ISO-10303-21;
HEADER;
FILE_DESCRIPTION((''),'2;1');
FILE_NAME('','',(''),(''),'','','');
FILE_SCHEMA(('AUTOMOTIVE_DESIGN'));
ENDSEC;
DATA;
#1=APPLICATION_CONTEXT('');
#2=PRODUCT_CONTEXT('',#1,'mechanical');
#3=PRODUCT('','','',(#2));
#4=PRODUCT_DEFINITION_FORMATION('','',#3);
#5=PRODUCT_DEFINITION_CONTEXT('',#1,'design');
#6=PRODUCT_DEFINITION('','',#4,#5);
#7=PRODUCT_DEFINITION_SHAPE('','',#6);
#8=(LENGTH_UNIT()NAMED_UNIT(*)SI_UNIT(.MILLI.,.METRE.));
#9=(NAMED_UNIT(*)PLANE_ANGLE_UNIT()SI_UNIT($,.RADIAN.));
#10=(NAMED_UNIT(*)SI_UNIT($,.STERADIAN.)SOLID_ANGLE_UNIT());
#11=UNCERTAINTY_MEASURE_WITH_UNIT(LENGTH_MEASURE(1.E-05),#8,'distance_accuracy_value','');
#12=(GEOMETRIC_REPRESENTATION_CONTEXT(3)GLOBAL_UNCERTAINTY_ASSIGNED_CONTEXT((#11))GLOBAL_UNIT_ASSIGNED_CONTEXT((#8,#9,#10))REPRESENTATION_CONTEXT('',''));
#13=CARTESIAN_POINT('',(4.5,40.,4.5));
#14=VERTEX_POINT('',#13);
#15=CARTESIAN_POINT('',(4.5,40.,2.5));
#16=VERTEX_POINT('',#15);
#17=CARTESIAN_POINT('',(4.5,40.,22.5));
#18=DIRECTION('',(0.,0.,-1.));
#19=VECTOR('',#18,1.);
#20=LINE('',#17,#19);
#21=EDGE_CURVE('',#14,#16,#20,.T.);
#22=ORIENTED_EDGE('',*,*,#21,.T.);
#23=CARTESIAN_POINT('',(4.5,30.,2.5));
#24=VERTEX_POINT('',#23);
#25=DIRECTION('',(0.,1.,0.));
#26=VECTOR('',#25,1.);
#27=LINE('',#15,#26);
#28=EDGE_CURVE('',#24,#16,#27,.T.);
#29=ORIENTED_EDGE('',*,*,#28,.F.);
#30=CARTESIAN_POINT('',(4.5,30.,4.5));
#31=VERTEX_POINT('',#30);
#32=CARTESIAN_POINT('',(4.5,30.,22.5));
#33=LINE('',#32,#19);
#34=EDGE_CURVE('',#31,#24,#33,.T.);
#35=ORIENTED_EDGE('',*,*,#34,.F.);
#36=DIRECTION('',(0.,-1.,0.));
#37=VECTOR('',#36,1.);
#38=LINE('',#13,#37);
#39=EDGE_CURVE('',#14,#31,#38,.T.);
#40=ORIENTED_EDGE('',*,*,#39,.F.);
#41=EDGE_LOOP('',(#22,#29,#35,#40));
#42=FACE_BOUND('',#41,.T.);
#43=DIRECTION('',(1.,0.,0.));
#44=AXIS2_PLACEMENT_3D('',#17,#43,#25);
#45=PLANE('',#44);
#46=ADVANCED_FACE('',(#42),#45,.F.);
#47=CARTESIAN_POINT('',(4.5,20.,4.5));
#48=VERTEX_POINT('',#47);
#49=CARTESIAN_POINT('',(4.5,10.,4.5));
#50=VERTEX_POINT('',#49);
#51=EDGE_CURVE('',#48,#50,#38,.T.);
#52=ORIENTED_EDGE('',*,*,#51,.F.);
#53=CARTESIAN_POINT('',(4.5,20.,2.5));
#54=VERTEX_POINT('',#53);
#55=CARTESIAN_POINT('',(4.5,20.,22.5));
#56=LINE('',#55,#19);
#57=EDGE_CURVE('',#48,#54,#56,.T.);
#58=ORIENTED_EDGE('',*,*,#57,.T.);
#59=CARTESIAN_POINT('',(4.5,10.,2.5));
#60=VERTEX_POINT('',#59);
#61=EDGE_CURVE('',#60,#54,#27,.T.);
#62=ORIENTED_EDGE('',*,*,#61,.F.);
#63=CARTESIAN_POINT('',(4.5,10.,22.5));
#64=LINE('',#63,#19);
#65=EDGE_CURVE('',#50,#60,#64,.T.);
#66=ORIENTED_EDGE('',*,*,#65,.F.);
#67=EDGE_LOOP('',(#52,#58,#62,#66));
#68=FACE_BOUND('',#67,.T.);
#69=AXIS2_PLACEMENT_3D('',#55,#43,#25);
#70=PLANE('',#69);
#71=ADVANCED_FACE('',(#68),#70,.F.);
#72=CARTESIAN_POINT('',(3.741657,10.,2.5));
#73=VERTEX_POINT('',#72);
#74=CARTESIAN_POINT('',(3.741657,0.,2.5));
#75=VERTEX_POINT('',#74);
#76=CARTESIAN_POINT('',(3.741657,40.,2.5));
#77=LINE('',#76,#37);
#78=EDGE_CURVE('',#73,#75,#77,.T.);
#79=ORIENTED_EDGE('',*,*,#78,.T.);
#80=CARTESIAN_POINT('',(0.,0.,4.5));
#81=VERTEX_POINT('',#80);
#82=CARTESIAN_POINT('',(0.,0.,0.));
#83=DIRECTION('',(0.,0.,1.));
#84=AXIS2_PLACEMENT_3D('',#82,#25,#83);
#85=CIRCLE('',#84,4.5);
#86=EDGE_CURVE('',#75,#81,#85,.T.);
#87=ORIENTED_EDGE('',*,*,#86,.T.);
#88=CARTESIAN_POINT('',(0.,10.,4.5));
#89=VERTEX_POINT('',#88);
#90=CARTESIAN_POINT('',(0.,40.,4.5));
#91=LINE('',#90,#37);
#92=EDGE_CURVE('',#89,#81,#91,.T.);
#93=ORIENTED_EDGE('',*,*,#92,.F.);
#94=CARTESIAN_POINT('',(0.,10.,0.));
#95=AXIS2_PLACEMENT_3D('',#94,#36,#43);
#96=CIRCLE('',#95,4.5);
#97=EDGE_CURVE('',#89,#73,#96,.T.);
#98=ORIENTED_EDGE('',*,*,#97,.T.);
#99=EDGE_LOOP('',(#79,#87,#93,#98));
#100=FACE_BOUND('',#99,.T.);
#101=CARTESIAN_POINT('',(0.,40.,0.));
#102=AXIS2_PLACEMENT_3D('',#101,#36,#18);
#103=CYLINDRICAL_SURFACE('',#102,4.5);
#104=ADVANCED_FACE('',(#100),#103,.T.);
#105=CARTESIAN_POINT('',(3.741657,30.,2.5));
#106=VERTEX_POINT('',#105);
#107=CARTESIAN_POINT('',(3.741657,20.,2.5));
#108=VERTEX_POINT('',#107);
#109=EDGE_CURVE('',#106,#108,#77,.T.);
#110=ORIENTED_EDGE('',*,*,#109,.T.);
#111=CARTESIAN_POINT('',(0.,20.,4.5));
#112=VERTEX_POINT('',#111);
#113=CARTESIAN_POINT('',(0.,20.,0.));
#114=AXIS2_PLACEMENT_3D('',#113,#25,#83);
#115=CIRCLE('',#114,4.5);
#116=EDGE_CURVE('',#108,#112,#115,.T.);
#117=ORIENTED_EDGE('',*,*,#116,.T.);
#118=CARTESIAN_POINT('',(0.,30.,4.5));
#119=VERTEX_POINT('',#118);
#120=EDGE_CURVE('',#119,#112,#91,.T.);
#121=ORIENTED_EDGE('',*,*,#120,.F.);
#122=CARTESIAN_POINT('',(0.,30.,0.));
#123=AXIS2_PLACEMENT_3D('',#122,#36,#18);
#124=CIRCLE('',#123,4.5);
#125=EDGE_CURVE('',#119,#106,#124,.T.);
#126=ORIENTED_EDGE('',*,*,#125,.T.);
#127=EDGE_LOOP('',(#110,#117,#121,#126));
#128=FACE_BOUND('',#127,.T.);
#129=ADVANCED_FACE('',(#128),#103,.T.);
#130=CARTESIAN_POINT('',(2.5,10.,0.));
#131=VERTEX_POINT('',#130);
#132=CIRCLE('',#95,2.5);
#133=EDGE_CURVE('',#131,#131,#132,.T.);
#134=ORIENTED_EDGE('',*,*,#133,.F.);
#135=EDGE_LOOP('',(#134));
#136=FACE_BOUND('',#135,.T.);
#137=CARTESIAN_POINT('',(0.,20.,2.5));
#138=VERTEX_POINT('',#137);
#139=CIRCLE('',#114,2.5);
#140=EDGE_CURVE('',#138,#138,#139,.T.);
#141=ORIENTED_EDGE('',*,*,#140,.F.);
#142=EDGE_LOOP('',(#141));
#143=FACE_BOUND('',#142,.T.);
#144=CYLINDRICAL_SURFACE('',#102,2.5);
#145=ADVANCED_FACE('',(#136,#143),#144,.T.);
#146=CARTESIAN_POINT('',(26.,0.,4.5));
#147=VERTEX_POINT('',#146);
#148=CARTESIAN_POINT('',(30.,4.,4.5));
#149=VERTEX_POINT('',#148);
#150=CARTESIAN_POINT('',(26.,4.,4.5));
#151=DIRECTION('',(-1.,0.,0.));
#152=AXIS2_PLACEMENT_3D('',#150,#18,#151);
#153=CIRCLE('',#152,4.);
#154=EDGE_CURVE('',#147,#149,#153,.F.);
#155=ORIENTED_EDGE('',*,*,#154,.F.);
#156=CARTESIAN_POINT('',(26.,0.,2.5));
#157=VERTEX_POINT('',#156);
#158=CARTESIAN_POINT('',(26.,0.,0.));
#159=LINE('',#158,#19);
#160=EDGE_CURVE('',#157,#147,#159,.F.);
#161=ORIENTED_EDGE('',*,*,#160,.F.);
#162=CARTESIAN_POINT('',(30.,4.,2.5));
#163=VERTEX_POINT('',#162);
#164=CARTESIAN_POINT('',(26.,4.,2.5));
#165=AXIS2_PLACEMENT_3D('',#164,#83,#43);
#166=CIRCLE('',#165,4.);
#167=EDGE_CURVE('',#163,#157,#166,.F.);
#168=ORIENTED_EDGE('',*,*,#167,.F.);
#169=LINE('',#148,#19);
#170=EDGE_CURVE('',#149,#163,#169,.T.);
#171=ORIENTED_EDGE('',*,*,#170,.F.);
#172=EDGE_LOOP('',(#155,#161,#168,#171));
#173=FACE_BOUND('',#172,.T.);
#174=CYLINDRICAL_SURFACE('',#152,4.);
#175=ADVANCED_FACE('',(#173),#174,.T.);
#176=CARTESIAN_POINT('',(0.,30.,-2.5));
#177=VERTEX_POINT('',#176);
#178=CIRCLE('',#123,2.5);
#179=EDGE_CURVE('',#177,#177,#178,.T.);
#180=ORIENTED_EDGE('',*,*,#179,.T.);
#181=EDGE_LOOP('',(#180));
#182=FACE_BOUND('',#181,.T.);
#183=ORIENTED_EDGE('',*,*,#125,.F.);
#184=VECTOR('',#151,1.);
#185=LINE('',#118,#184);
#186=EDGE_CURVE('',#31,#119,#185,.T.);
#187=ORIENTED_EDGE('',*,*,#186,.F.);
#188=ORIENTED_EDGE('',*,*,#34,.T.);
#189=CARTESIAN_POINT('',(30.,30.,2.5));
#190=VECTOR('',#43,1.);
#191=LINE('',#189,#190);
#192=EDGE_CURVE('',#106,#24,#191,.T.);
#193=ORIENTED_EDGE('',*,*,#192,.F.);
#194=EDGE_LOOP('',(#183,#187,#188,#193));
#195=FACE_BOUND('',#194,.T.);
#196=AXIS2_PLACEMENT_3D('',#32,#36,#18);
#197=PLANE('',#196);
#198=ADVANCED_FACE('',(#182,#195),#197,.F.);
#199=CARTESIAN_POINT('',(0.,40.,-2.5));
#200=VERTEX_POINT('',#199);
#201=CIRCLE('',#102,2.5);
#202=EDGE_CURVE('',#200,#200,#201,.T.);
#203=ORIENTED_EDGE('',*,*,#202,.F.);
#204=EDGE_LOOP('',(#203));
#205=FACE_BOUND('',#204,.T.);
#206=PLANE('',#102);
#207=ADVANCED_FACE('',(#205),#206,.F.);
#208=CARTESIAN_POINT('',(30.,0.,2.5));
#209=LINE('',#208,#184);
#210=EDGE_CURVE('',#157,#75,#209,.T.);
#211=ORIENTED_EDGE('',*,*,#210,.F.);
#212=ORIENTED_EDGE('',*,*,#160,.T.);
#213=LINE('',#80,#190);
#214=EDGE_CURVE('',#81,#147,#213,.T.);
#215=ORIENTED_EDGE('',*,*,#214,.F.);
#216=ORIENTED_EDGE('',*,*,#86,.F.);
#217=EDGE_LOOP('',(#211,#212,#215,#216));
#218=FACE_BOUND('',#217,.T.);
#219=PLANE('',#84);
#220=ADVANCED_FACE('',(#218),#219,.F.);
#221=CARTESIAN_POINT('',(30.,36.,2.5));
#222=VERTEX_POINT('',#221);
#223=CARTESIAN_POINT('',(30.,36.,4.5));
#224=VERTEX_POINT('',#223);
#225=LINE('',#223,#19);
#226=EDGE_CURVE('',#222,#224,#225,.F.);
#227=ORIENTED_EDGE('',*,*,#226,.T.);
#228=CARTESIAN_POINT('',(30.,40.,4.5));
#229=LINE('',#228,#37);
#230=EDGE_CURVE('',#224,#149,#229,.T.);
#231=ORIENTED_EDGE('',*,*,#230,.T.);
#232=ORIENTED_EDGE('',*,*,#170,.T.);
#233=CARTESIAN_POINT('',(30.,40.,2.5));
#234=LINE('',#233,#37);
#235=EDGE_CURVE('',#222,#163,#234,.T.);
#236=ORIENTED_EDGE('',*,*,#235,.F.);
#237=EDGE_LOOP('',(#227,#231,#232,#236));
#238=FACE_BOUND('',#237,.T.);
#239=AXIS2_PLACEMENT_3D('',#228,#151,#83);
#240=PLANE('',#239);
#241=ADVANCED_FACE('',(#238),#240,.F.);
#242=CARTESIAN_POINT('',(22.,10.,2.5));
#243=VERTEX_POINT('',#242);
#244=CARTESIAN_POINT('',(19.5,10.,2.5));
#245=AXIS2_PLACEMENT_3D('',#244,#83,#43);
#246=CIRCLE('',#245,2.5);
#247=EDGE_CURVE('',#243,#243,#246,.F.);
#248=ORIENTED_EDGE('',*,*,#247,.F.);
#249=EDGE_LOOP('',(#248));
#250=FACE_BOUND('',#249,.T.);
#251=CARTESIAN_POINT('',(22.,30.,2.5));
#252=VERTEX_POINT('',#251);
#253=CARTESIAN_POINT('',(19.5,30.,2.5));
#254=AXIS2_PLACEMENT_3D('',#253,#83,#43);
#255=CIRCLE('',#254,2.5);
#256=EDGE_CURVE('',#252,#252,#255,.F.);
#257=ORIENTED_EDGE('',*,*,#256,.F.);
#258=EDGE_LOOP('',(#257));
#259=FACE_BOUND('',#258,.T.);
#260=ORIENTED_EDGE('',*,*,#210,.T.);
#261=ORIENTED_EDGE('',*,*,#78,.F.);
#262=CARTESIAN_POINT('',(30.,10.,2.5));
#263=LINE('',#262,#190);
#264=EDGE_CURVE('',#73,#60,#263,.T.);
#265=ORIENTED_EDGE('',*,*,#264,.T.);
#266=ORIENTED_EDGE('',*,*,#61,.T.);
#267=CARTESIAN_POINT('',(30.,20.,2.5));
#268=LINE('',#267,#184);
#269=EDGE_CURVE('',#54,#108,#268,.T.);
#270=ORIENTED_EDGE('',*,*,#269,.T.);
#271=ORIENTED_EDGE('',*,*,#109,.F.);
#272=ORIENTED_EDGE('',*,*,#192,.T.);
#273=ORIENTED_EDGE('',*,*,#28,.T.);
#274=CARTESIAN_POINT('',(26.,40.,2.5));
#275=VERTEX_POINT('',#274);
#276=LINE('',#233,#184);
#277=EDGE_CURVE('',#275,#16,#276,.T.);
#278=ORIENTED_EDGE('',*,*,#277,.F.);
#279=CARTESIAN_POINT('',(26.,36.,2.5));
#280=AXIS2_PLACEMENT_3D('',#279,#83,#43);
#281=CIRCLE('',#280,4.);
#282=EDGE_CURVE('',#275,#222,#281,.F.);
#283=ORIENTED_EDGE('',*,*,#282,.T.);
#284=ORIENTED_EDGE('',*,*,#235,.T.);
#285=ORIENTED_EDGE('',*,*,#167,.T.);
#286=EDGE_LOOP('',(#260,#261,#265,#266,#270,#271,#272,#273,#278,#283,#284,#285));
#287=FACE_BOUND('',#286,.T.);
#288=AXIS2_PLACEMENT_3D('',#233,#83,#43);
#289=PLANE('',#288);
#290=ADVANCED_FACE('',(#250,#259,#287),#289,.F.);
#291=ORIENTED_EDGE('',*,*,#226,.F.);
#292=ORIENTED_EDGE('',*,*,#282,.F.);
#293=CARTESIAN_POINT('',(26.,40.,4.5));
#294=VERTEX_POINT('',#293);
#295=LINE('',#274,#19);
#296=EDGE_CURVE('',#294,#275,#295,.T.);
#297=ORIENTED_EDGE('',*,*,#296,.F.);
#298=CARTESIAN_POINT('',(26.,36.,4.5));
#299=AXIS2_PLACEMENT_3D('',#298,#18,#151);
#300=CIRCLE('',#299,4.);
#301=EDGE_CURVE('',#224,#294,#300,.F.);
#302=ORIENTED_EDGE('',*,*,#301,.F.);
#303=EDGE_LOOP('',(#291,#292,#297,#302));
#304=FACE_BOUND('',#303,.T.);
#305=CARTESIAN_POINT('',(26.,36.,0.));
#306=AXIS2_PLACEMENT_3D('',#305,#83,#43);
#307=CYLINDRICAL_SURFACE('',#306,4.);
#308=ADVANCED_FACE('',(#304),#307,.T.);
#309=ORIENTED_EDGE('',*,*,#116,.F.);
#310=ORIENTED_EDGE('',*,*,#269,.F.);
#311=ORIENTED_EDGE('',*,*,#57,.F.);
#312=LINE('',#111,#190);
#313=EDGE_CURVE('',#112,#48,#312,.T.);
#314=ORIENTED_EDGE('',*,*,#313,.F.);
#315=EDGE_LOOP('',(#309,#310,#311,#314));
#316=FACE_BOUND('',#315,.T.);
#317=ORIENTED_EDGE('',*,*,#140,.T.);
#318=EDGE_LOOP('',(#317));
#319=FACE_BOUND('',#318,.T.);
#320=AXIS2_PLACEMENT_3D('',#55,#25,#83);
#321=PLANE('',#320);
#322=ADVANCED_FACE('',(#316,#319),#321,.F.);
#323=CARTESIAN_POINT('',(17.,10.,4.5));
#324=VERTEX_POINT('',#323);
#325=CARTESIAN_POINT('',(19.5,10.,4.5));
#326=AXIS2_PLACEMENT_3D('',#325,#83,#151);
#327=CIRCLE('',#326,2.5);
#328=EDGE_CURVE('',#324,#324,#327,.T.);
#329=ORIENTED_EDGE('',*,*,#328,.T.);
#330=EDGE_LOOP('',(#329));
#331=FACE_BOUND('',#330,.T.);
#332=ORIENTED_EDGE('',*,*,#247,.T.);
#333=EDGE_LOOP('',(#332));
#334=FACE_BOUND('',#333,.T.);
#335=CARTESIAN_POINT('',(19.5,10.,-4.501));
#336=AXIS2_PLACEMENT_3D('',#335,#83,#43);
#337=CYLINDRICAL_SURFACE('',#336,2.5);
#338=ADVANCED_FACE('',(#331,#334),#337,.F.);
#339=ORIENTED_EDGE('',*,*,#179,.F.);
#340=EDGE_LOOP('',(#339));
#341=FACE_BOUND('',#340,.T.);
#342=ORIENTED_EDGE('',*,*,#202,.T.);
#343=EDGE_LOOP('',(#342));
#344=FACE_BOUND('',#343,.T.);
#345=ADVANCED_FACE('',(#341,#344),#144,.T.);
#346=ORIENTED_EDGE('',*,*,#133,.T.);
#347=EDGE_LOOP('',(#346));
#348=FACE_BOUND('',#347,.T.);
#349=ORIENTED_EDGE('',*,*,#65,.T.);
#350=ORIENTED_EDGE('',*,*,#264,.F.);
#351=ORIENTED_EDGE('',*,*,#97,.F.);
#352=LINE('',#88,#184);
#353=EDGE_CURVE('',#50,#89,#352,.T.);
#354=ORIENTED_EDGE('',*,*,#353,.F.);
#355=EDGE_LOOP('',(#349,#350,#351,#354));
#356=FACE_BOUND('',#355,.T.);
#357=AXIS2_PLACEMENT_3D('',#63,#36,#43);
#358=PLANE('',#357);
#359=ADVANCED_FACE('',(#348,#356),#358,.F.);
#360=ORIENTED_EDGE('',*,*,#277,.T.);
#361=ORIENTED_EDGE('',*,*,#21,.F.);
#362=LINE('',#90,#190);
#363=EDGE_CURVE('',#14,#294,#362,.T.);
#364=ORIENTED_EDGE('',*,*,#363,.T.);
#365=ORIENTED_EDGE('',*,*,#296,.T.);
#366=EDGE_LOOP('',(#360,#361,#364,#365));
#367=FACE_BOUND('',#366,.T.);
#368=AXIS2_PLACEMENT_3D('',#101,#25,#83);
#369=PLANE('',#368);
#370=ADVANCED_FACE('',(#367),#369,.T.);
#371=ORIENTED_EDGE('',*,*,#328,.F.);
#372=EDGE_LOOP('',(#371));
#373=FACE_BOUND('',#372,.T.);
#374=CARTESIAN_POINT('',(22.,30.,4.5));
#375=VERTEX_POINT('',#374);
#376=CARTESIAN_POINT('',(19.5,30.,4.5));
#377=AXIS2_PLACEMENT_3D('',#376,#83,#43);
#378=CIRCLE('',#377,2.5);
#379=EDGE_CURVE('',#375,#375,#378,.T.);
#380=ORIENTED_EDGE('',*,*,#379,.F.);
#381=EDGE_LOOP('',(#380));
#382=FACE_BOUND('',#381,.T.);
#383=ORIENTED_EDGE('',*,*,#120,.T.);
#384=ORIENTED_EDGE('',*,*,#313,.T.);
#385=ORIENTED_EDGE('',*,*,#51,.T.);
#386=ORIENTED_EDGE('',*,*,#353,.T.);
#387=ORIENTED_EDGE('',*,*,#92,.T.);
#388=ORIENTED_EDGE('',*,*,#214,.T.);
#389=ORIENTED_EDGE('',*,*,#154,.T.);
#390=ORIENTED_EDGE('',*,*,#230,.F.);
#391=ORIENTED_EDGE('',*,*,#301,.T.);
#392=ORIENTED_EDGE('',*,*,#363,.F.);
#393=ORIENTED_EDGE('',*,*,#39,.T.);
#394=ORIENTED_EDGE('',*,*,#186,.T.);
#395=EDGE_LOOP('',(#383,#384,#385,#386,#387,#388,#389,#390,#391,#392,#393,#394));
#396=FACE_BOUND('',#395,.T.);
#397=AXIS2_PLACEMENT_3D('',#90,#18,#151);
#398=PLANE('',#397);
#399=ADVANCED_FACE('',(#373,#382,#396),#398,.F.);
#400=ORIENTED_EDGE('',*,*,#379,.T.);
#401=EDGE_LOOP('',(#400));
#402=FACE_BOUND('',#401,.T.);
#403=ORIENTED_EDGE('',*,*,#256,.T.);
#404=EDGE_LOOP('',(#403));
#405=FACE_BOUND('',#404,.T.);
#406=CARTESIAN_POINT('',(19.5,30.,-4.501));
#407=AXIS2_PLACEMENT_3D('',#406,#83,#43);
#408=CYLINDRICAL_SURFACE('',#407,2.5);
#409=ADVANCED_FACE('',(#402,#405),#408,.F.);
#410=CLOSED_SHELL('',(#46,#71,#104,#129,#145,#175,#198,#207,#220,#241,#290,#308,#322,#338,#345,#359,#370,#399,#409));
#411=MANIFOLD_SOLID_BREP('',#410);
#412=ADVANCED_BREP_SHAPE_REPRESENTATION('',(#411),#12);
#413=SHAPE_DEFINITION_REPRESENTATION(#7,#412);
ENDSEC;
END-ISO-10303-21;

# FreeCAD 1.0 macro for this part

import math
import FreeCAD as App
import Part
import Sketcher

V = App.Vector
Q = App.Units.Quantity


def edges_at(feature, points):
    """Names of the edges that pass closest to the given points."""
    edges = feature.Shape.Edges
    near = lambda p: min(range(len(edges)), key=lambda i: edges[i].distToShape(Part.Vertex(*p))[0])
    return sorted({f"Edge{near(p) + 1}" for p in points})


def add_polygon(sketch, points):
    """Adds a closed chain of lines whose ends are joined by coincident constraints."""
    first, n = sketch.GeometryCount, len(points)
    for a, b in zip(points, points[1:] + points[:1]):
        sketch.addGeometry(Part.LineSegment(App.Vector(*a, 0), App.Vector(*b, 0)), False)
    for i in range(n):
        sketch.addConstraint(Sketcher.Constraint("Coincident", first + i, 2, first + (i + 1) % n, 1))

doc = App.newDocument("Part")
params = doc.addObject("Spreadsheet::Sheet", "Params")
for row, (alias, value) in enumerate([
    ("sketch1_diameter", "5 mm"),
    ("sketch1_radius", "4.5 mm"),
    ("sketch1_width", "30 mm"),
    ("sketch1_height", "2 mm"),
    ("pad1_length", "40 mm"),
    ("sketch2_diameter", "5 mm"),
    ("sketch3_diameter", "5 mm"),
    ("sketch4_width", "9 mm"),
    ("sketch4_height", "10 mm"),
    ("pocket3_length", "40 mm"),
    ("fillet_radius", "4 mm"),
    ("sketch5_diameter", "5 mm"),
    ("pad2_length", "40 mm"),
], start=1):
    params.set(f"A{row}", alias)
    params.set(f"B{row}", "=" + value)
    params.setAlias(f"B{row}", alias)

body = doc.addObject("PartDesign::Body", "Body")

# Sketch on XZ plane
sketch1 = doc.addObject("Sketcher::SketchObject", "Sketch")
body.addObject(sketch1)
sketch1.AttachmentSupport = (doc.XZ_Plane, [""])
sketch1.MapMode = "FlatFace"
sketch1.addGeometry(Part.LineSegment(V(0, 4.5, 0), V(30, 4.5, 0)), False)
sketch1.addGeometry(Part.LineSegment(V(30, 4.5, 0), V(30, 2.5, 0)), False)
sketch1.addGeometry(Part.LineSegment(V(30, 2.5, 0), V(3.7, 2.5, 0)), False)
sketch1.addGeometry(Part.ArcOfCircle(Part.Circle(V(0, 0, 0), V(0, 0, 1), 4.5), math.radians(90), math.radians(394)), False)
sketch1.addGeometry(Part.Circle(V(0, 0, 0), V(0, 0, 1), 2.5), False)
sketch1.addConstraint(Sketcher.Constraint("Coincident", 0, 2, 1, 1))
sketch1.addConstraint(Sketcher.Constraint("Coincident", 1, 2, 2, 1))
sketch1.addConstraint(Sketcher.Constraint("Coincident", 2, 2, 3, 2))
sketch1.addConstraint(Sketcher.Constraint("Tangent", 3, 1, 0, 1))
sketch1.addConstraint(Sketcher.Constraint("Horizontal", 0))
sketch1.addConstraint(Sketcher.Constraint("Vertical", 1))
sketch1.addConstraint(Sketcher.Constraint("Horizontal", 2))
sketch1.addConstraint(Sketcher.Constraint("Coincident", 3, 3, -1, 1))
sketch1.addConstraint(Sketcher.Constraint("Coincident", 4, 3, -1, 1))
sketch1.addConstraint(Sketcher.Constraint("Diameter", 4, Q("5 mm")))
sketch1.addConstraint(Sketcher.Constraint("Radius", 3, Q("4.5 mm")))
sketch1.addConstraint(Sketcher.Constraint("DistanceX", 0, 1, 0, 2, Q("30 mm")))
sketch1.addConstraint(Sketcher.Constraint("DistanceY", 1, 2, 1, 1, Q("2 mm")))
sketch1.setExpression("Constraints[9]", "Params.sketch1_diameter")
sketch1.setExpression("Constraints[10]", "Params.sketch1_radius")
sketch1.setExpression("Constraints[11]", "Params.sketch1_width")
sketch1.setExpression("Constraints[12]", "Params.sketch1_height")
pad1 = doc.addObject("PartDesign::Pad", "Pad")
body.addObject(pad1)
pad1.Profile = sketch1
pad1.setExpression("Length", "Params.pad1_length")
pad1.Reversed = True

# Sketch on XY plane
sketch2 = doc.addObject("Sketcher::SketchObject", "Sketch001")
body.addObject(sketch2)
sketch2.AttachmentSupport = (doc.XY_Plane, [""])
sketch2.MapMode = "FlatFace"
sketch2.AttachmentOffset = App.Placement(V(0, 0, 4.5), App.Rotation())
sketch2.addGeometry(Part.Circle(V(19.5, 30, 0), V(0, 0, 1), 2.5), False)
sketch2.addConstraint(Sketcher.Constraint("Diameter", 0, Q("5 mm")))
sketch2.addConstraint(Sketcher.Constraint("DistanceY", -1, 1, 0, 3, Q("30 mm")))
sketch2.addConstraint(Sketcher.Constraint("DistanceX", -1, 1, 0, 3, Q("19.5 mm")))
sketch2.setExpression("Constraints[0]", "Params.sketch2_diameter")
pocket1 = doc.addObject("PartDesign::Pocket", "Pocket")
body.addObject(pocket1)
pocket1.Profile = sketch2
pocket1.Type = "UpToFirst"

# Sketch on XY plane
sketch3 = doc.addObject("Sketcher::SketchObject", "Sketch002")
body.addObject(sketch3)
sketch3.AttachmentSupport = (doc.XY_Plane, [""])
sketch3.MapMode = "FlatFace"
sketch3.AttachmentOffset = App.Placement(V(0, 0, 4.5), App.Rotation())
sketch3.addGeometry(Part.Circle(V(19.5, 10, 0), V(0, 0, 1), 2.5), False)
sketch3.addConstraint(Sketcher.Constraint("Diameter", 0, Q("5 mm")))
sketch3.addConstraint(Sketcher.Constraint("DistanceY", -1, 1, 0, 3, Q("10 mm")))
sketch3.addConstraint(Sketcher.Constraint("DistanceX", -1, 1, 0, 3, Q("19.5 mm")))
sketch3.setExpression("Constraints[0]", "Params.sketch3_diameter")
pocket2 = doc.addObject("PartDesign::Pocket", "Pocket001")
body.addObject(pocket2)
pocket2.Profile = sketch3
pocket2.Type = "UpToFirst"

# Sketch on XY plane
sketch4 = doc.addObject("Sketcher::SketchObject", "Sketch003")
body.addObject(sketch4)
sketch4.AttachmentSupport = (doc.XY_Plane, [""])
sketch4.MapMode = "FlatFace"
sketch4.AttachmentOffset = App.Placement(V(0, 0, 2.5), App.Rotation())
add_polygon(sketch4, [(4, 40), (4, 30), (-4, 30), (-4, 40)])  # lines 0-3
add_polygon(sketch4, [(4, 20), (4, 10), (-4, 10), (-4, 20)])  # lines 4-7
sketch4.addConstraint(Sketcher.Constraint("Vertical", 0))
sketch4.addConstraint(Sketcher.Constraint("Horizontal", 1))
sketch4.addConstraint(Sketcher.Constraint("Vertical", 2))
sketch4.addConstraint(Sketcher.Constraint("Horizontal", 3))
sketch4.addConstraint(Sketcher.Constraint("Vertical", 4))
sketch4.addConstraint(Sketcher.Constraint("Horizontal", 5))
sketch4.addConstraint(Sketcher.Constraint("Vertical", 6))
sketch4.addConstraint(Sketcher.Constraint("Horizontal", 7))
sketch4.addConstraint(Sketcher.Constraint("Vertical", 3, 2, 4, 2))
sketch4.addConstraint(Sketcher.Constraint("Vertical", 2, 2, 5, 2))
sketch4.addConstraint(Sketcher.Constraint("Equal", 2, 4))
sketch4.addConstraint(Sketcher.Constraint("DistanceX", 1, 2, 1, 1, Q("9 mm")))
sketch4.addConstraint(Sketcher.Constraint("DistanceY", 0, 2, 0, 1, Q("10 mm")))
sketch4.addConstraint(Sketcher.Constraint("DistanceY", -1, 1, 0, 2, Q("30 mm")))
sketch4.addConstraint(Sketcher.Constraint("DistanceY", -1, 1, 4, 2, Q("10 mm")))
sketch4.addConstraint(Sketcher.Constraint("DistanceX", -1, 1, 0, 2, Q("4.5 mm")))
sketch4.setExpression("Constraints[19]", "Params.sketch4_width")
sketch4.setExpression("Constraints[20]", "Params.sketch4_height")
pocket3 = doc.addObject("PartDesign::Pocket", "Pocket002")
body.addObject(pocket3)
pocket3.Profile = sketch4
pocket3.setExpression("Length", "Params.pocket3_length")
pocket3.Midplane = True
doc.recompute()

fillet = doc.addObject("PartDesign::Fillet", "Fillet")
body.addObject(fillet)
fillet.Base = (pocket3, edges_at(pocket3, [(30, 40, 3.5), (30, 0, 3.5)]))
fillet.setExpression("Radius", "Params.fillet_radius")

# Sketch on XZ plane
sketch5 = doc.addObject("Sketcher::SketchObject", "Sketch004")
body.addObject(sketch5)
sketch5.AttachmentSupport = (doc.XZ_Plane, [""])
sketch5.MapMode = "FlatFace"
sketch5.addGeometry(Part.Circle(V(0, 0, 0), V(0, 0, 1), 2.5), False)
sketch5.addConstraint(Sketcher.Constraint("Coincident", 0, 3, -1, 1))
sketch5.addConstraint(Sketcher.Constraint("Diameter", 0, Q("5 mm")))
sketch5.setExpression("Constraints[1]", "Params.sketch5_diameter")
pad2 = doc.addObject("PartDesign::Pad", "Pad001")
body.addObject(pad2)
pad2.Profile = sketch5
pad2.setExpression("Length", "Params.pad2_length")
pad2.Reversed = True

doc.recompute()
